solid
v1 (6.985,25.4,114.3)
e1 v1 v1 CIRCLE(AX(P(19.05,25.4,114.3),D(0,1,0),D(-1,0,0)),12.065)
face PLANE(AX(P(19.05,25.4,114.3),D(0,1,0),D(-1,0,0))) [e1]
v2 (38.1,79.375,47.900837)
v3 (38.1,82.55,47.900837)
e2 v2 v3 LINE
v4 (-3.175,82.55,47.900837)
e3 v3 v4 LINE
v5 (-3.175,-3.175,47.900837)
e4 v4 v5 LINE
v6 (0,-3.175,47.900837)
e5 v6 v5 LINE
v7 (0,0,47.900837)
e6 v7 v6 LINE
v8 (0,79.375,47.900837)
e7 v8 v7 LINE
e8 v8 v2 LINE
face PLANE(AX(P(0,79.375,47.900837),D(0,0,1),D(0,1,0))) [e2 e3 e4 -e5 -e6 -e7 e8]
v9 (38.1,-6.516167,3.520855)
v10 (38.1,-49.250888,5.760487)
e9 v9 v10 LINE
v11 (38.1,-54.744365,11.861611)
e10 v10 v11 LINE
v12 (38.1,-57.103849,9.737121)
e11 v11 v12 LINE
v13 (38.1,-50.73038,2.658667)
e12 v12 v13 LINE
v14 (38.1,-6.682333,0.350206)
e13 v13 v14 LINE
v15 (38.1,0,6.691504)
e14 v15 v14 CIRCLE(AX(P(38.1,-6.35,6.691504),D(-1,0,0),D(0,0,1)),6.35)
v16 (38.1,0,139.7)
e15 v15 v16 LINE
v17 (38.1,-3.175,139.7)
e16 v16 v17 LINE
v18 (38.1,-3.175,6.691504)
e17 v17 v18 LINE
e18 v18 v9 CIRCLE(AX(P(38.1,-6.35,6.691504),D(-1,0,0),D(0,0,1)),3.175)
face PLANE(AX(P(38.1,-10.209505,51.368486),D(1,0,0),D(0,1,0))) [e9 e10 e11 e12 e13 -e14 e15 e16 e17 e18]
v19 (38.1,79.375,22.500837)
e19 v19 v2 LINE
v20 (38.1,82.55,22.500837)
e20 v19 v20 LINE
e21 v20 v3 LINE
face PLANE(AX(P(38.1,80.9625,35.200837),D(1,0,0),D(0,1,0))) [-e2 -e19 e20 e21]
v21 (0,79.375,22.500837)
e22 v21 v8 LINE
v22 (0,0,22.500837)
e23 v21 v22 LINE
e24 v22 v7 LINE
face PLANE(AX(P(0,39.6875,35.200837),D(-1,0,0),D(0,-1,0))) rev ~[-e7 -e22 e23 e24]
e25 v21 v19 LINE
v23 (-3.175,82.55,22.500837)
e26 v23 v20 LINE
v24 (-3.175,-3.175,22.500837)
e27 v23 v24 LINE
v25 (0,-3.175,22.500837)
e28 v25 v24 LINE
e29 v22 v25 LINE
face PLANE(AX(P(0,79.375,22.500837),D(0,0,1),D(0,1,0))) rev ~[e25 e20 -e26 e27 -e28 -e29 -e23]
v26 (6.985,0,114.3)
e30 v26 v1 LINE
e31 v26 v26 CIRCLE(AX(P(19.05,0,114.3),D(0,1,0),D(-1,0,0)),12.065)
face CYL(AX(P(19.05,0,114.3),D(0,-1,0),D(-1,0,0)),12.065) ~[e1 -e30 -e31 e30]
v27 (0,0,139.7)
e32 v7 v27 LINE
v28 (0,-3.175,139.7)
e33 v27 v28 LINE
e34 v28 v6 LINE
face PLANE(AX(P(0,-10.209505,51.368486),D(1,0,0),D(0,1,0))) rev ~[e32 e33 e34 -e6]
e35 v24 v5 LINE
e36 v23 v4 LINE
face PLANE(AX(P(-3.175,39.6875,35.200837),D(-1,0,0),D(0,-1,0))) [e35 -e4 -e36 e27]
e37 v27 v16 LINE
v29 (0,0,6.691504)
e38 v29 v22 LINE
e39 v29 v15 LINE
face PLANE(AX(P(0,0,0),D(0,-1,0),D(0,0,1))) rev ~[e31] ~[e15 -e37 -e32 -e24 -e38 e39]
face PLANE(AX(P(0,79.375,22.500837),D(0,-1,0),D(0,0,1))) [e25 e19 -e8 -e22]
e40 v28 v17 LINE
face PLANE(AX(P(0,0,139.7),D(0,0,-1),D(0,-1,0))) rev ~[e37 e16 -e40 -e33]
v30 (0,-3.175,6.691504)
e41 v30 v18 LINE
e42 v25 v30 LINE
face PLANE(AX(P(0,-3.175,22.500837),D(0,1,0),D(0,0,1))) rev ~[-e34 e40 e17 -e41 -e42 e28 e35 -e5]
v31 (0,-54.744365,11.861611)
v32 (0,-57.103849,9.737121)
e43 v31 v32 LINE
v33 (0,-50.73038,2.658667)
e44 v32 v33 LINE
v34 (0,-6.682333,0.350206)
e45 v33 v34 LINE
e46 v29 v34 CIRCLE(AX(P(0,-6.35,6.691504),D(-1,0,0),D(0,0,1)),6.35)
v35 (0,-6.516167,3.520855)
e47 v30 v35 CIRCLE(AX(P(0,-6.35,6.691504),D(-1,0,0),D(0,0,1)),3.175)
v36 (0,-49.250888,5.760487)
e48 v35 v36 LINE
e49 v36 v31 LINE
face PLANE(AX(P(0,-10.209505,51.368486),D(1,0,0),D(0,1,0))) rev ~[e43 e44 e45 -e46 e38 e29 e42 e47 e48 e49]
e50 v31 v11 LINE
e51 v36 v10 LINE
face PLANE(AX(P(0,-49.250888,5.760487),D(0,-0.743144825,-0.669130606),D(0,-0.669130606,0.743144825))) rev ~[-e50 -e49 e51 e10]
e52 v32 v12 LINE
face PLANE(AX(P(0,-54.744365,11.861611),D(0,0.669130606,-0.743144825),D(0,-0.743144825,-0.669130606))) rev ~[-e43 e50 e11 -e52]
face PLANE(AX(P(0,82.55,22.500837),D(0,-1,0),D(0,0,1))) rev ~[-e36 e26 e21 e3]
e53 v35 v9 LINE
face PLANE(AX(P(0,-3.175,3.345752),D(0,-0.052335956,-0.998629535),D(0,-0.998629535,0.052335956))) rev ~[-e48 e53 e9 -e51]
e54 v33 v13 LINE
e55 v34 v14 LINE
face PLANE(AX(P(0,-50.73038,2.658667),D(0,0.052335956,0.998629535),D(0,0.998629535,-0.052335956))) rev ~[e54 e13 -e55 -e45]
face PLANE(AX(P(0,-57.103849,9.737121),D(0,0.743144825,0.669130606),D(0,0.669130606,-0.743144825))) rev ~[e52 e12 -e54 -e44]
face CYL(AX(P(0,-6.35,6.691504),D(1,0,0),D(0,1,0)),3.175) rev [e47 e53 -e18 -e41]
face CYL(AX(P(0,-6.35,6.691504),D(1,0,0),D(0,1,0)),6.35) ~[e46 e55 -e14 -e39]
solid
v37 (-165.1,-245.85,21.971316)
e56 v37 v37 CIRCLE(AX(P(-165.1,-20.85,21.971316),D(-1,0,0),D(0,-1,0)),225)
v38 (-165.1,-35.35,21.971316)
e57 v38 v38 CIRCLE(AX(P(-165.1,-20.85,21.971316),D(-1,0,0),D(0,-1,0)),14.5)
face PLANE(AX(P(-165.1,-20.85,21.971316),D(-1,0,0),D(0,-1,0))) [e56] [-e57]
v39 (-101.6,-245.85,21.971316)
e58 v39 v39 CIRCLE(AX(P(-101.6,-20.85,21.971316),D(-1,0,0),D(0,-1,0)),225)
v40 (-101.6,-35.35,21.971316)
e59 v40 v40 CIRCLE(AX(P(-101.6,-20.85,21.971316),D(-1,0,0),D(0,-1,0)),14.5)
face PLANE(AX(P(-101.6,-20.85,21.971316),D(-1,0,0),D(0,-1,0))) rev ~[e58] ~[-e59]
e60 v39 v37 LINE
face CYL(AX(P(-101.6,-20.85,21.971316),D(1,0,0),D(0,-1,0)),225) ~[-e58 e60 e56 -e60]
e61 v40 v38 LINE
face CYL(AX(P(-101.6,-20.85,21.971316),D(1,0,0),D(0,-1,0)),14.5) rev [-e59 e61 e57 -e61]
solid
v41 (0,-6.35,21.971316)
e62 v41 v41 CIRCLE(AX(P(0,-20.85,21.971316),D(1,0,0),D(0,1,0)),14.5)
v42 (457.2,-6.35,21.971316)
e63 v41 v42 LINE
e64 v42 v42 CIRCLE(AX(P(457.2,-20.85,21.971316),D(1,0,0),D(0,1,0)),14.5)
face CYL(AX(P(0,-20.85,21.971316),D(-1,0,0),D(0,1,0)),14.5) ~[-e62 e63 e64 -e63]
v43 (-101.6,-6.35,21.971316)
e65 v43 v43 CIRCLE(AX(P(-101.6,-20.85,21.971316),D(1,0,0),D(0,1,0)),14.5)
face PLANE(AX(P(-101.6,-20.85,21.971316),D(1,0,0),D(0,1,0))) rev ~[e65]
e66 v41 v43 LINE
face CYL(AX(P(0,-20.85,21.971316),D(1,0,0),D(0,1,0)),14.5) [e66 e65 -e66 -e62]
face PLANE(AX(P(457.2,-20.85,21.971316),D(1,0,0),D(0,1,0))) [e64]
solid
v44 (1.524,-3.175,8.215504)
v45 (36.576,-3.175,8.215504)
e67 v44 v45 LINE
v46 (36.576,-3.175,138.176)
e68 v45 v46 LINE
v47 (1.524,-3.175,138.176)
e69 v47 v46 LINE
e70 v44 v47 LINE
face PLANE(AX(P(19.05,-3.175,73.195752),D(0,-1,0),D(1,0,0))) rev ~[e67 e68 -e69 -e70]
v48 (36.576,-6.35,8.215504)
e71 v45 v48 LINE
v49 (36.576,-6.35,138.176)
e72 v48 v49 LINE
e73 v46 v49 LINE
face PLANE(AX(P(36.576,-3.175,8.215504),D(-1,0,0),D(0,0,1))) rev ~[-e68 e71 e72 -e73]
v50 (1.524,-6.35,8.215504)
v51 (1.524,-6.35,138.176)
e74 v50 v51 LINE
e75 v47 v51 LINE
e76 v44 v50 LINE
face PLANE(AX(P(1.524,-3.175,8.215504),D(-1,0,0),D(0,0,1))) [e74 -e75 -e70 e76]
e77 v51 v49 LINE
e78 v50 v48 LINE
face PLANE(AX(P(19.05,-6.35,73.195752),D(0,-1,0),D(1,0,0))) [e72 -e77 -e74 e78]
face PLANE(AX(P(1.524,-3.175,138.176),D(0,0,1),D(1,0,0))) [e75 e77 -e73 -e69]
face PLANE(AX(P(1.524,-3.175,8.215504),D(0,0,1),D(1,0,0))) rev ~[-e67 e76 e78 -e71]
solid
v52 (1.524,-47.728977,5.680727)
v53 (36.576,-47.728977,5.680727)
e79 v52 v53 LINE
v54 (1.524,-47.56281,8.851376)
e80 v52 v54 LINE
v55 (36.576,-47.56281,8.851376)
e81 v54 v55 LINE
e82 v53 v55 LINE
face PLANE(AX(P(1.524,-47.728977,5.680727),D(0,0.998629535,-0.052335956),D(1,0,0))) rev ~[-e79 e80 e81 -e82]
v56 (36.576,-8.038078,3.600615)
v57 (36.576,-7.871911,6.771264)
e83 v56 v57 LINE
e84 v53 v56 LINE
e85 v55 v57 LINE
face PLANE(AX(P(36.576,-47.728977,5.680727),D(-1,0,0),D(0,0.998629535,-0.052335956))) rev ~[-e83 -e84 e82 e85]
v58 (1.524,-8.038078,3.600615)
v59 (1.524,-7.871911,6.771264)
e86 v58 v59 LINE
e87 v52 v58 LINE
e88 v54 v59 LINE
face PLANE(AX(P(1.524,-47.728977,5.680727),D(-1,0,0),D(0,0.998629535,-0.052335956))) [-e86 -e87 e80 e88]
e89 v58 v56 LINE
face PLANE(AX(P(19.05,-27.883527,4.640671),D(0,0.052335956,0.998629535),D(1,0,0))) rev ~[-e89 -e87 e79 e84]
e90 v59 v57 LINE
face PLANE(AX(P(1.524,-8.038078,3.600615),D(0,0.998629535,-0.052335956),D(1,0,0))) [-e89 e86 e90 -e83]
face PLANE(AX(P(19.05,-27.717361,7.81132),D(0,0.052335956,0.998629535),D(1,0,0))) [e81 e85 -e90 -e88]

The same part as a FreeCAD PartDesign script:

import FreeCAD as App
import Part
import Sketcher
Q = App.Units.Quantity


def edges_at(feature, points):
    """Names of the edges that pass closest to the given points."""
    edges = feature.Shape.Edges
    near = lambda p: min(range(len(edges)), key=lambda i: edges[i].distToShape(Part.Vertex(*p))[0])
    return sorted({f"Edge{near(p) + 1}" for p in points})


def add_polygon(sketch, points):
    """Adds a closed chain of lines whose ends are joined by coincident constraints."""
    first, n = sketch.GeometryCount, len(points)
    for a, b in zip(points, points[1:] + points[:1]):
        sketch.addGeometry(Part.LineSegment(App.Vector(*a, 0), App.Vector(*b, 0)), False)
    for i in range(n):
        sketch.addConstraint(Sketcher.Constraint("Coincident", first + i, 2, first + (i + 1) % n, 1))

doc = App.newDocument("Part")
body = doc.addObject("PartDesign::Body", "Body")

sketch1 = body.newObject("Sketcher::SketchObject", "Sketch")
sketch1.AttachmentSupport = (doc.getObject("YZ_Plane"), [""])
sketch1.MapMode = "FlatFace"
add_polygon(sketch1, [(-50.73038, 2.658667), (0, 0), (0, 139.7), (-3.175, 139.7), (-3.175, 3.345752), (-49.250888, 5.760487), (-54.744365, 11.861611), (-57.103849, 9.737121)])
sketch1.addConstraint([
    Sketcher.Constraint("Vertical", 1),
    Sketcher.Constraint("Horizontal", 2),
    Sketcher.Constraint("Vertical", 3),
    Sketcher.Constraint("Coincident", 0, 2, -1, 1),
    Sketcher.Constraint("Parallel", 0, 4),
    Sketcher.Constraint("Perpendicular", 5, 6),
    Sketcher.Constraint("Perpendicular", 6, 7),
    Sketcher.Constraint("Distance", 0, Q("2 in")),
    Sketcher.Constraint("DistanceY", 1, 1, 1, 2, Q("5.5 in")),
    Sketcher.Constraint("Angle", 0, Q("-3 deg")),
    Sketcher.Constraint("Angle", 5, Q("132 deg")),
    Sketcher.Constraint("DistanceX", 2, 2, 2, 1, Q("0.125 in")),
    Sketcher.Constraint("Distance", 6, Q("0.125 in")),
    Sketcher.Constraint("Distance", 7, Q("0.375 in")),
    Sketcher.Constraint("DistanceY", 3, 2, 3, 1, Q("136.354248 mm")),
])
pad1 = body.newObject("PartDesign::Pad", "Pad")
pad1.Profile = sketch1
pad1.Length = Q("1.5 in")
doc.recompute()

fillet = body.newObject("PartDesign::Fillet", "Fillet")
fillet.Base = (pad1, edges_at(pad1, [(19.05, -3.175, 3.346)]))
fillet.Radius = Q("0.125 in")
doc.recompute()

fillet2 = body.newObject("PartDesign::Fillet", "Fillet001")
fillet2.Base = (fillet, edges_at(fillet, [(19.05, 0, 0)]))
fillet2.Radius = Q("0.25 in")

sketch2 = body.newObject("Sketcher::SketchObject", "Sketch001")
sketch2.AttachmentSupport = (doc.getObject("YZ_Plane"), [""])
sketch2.MapMode = "FlatFace"
add_polygon(sketch2, [(82.55, 47.900837), (82.55, 22.500837), (-3.175, 22.500837), (-3.175, 47.900837)])
sketch2.addConstraint([
    Sketcher.Constraint("Vertical", 0),
    Sketcher.Constraint("Horizontal", 1),
    Sketcher.Constraint("Vertical", 2),
    Sketcher.Constraint("Horizontal", 3),
    Sketcher.Constraint("DistanceY", 0, 2, 0, 1, Q("1 in")),
    Sketcher.Constraint("DistanceX", 1, 2, 1, 1, Q("3.375 in")),
    Sketcher.Constraint("DistanceX", -1, 1, 0, 2, Q("3.25 in")),
    Sketcher.Constraint("DistanceY", -1, 1, 0, 2, Q("22.500837 mm")),
])
pad2 = body.newObject("PartDesign::Pad", "Pad001")
pad2.Profile = sketch2
pad2.Length = Q("0.125 in")
pad2.Reversed = True

sketch3 = body.newObject("Sketcher::SketchObject", "Sketch002")
sketch3.AttachmentSupport = (doc.getObject("YZ_Plane"), [""])
sketch3.MapMode = "FlatFace"
add_polygon(sketch3, [(79.375, 47.900837), (79.375, 22.500837), (82.55, 22.500837), (82.55, 47.900837)])
sketch3.addConstraint([
    Sketcher.Constraint("Vertical", 0),
    Sketcher.Constraint("Horizontal", 1),
    Sketcher.Constraint("Vertical", 2),
    Sketcher.Constraint("Horizontal", 3),
    Sketcher.Constraint("DistanceY", 0, 2, 0, 1, Q("1 in")),
    Sketcher.Constraint("DistanceX", 1, 1, 1, 2, Q("0.125 in")),
    Sketcher.Constraint("DistanceX", -1, 1, 1, 2, Q("3.25 in")),
    Sketcher.Constraint("DistanceY", -1, 1, 0, 2, Q("22.500837 mm")),
])
pad3 = body.newObject("PartDesign::Pad", "Pad002")
pad3.Profile = sketch3
pad3.Length = Q("1.5 in")

sketch4 = body.newObject("Sketcher::SketchObject", "Sketch003")
sketch4.AttachmentSupport = (doc.getObject("XZ_Plane"), [""])
sketch4.MapMode = "FlatFace"
sketch4.addGeometry(Part.Circle(App.Vector(19.05, 114.3, 0), App.Vector(0, 0, 1), 12.065), False)
sketch4.addConstraint([
    Sketcher.Constraint("Diameter", 0, Q("0.95 in")),
    Sketcher.Constraint("DistanceY", -1, 1, 0, 3, Q("4.5 in")),
    Sketcher.Constraint("DistanceX", -1, 1, 0, 3, Q("0.75 in")),
])
pad4 = body.newObject("PartDesign::Pad", "Pad003")
pad4.Profile = sketch4
pad4.Length = Q("1 in")
pad4.Reversed = True
body2 = doc.addObject("PartDesign::Body", "Body001")

sketch5 = body2.newObject("Sketcher::SketchObject", "Sketch004")
sketch5.AttachmentSupport = (doc.getObject("XZ_Plane001"), [""])
sketch5.MapMode = "FlatFace"
sketch5.AttachmentOffset = App.Placement(App.Vector(0, 0, 0.125 * 25.4), App.Rotation())
add_polygon(sketch5, [(1.524, 138.176), (1.524, 8.215504), (36.576, 8.215504), (36.576, 138.176)])
sketch5.addConstraint([
    Sketcher.Constraint("Vertical", 0),
    Sketcher.Constraint("Horizontal", 1),
    Sketcher.Constraint("Vertical", 2),
    Sketcher.Constraint("Horizontal", 3),
    Sketcher.Constraint("DistanceX", 1, 1, 1, 2, Q("1.38 in")),
    Sketcher.Constraint("DistanceX", -1, 1, 0, 2, Q("0.06 in")),
    Sketcher.Constraint("DistanceY", -1, 1, 2, 2, Q("5.44 in")),
    Sketcher.Constraint("DistanceY", 0, 2, 0, 1, Q("129.960496 mm")),
])
pad5 = body2.newObject("PartDesign::Pad", "Pad004")
pad5.Profile = sketch5
pad5.Length = Q("0.125 in")
body3 = doc.addObject("PartDesign::Body", "Body002")

sketch6 = body3.newObject("Sketcher::SketchObject", "Sketch005")
sketch6.Placement = App.Placement(App.Vector(0, 0.166167, 3.170649), App.Rotation(App.Vector(1, 0, 0), App.Vector(0, 0.998629535, -0.052335956), App.Vector(0, 0.052335956, 0.998629535), "ZXY"))
add_polygon(sketch6, [(1.524, -8.215504), (1.524, -47.960872), (36.576, -47.960872), (36.576, -8.215504)])
sketch6.addConstraint([
    Sketcher.Constraint("Vertical", 0),
    Sketcher.Constraint("Horizontal", 1),
    Sketcher.Constraint("Vertical", 2),
    Sketcher.Constraint("Horizontal", 3),
    Sketcher.Constraint("DistanceX", 1, 1, 1, 2, Q("1.38 in")),
    Sketcher.Constraint("DistanceX", -1, 1, 0, 2, Q("0.06 in")),
    Sketcher.Constraint("DistanceY", 0, 2, 0, 1, Q("39.745368 mm")),
    Sketcher.Constraint("DistanceY", 0, 2, -1, 1, Q("47.960872 mm")),
])
pad6 = body3.newObject("PartDesign::Pad", "Pad005")
pad6.Profile = sketch6
pad6.Length = Q("0.125 in")
body4 = doc.addObject("PartDesign::Body", "Body003")

sketch7 = body4.newObject("Sketcher::SketchObject", "Sketch006")
sketch7.AttachmentSupport = (doc.getObject("YZ_Plane003"), [""])
sketch7.MapMode = "FlatFace"
sketch7.addGeometry(Part.Circle(App.Vector(-20.85, 21.971316, 0), App.Vector(0, 0, 1), 14.5), False)
sketch7.addConstraint([
    Sketcher.Constraint("Diameter", 0, Q("29 mm")),
    Sketcher.Constraint("DistanceX", 0, 3, -1, 1, Q("20.85 mm")),
    Sketcher.Constraint("DistanceY", -1, 1, 0, 3, Q("21.971316 mm")),
])
pad7 = body4.newObject("PartDesign::Pad", "Pad006")
pad7.Profile = sketch7
pad7.Type = "TwoLengths"
pad7.Length = Q("4 in")
pad7.Length2 = Q("18 in")
pad7.Reversed = True
body5 = doc.addObject("PartDesign::Body", "Body004")

sketch8 = body5.newObject("Sketcher::SketchObject", "Sketch007")
sketch8.AttachmentSupport = (doc.getObject("YZ_Plane004"), [""])
sketch8.MapMode = "FlatFace"
sketch8.AttachmentOffset = App.Placement(App.Vector(0, 0, -4 * 25.4), App.Rotation())
sketch8.addGeometry([
    Part.Circle(App.Vector(-20.85, 21.971316, 0), App.Vector(0, 0, 1), 225),
    Part.Circle(App.Vector(-20.85, 21.971316, 0), App.Vector(0, 0, 1), 14.5),
], False)
sketch8.addConstraint([
    Sketcher.Constraint("Coincident", 1, 3, 0, 3),
    Sketcher.Constraint("Diameter", 0, Q("450 mm")),
    Sketcher.Constraint("Diameter", 1, Q("29 mm")),
    Sketcher.Constraint("DistanceX", 0, 3, -1, 1, Q("20.85 mm")),
    Sketcher.Constraint("DistanceY", -1, 1, 0, 3, Q("21.971316 mm")),
])
pad8 = body5.newObject("PartDesign::Pad", "Pad007")
pad8.Profile = sketch8
pad8.Length = Q("2.5 in")
pad8.Reversed = True

doc.recompute()
